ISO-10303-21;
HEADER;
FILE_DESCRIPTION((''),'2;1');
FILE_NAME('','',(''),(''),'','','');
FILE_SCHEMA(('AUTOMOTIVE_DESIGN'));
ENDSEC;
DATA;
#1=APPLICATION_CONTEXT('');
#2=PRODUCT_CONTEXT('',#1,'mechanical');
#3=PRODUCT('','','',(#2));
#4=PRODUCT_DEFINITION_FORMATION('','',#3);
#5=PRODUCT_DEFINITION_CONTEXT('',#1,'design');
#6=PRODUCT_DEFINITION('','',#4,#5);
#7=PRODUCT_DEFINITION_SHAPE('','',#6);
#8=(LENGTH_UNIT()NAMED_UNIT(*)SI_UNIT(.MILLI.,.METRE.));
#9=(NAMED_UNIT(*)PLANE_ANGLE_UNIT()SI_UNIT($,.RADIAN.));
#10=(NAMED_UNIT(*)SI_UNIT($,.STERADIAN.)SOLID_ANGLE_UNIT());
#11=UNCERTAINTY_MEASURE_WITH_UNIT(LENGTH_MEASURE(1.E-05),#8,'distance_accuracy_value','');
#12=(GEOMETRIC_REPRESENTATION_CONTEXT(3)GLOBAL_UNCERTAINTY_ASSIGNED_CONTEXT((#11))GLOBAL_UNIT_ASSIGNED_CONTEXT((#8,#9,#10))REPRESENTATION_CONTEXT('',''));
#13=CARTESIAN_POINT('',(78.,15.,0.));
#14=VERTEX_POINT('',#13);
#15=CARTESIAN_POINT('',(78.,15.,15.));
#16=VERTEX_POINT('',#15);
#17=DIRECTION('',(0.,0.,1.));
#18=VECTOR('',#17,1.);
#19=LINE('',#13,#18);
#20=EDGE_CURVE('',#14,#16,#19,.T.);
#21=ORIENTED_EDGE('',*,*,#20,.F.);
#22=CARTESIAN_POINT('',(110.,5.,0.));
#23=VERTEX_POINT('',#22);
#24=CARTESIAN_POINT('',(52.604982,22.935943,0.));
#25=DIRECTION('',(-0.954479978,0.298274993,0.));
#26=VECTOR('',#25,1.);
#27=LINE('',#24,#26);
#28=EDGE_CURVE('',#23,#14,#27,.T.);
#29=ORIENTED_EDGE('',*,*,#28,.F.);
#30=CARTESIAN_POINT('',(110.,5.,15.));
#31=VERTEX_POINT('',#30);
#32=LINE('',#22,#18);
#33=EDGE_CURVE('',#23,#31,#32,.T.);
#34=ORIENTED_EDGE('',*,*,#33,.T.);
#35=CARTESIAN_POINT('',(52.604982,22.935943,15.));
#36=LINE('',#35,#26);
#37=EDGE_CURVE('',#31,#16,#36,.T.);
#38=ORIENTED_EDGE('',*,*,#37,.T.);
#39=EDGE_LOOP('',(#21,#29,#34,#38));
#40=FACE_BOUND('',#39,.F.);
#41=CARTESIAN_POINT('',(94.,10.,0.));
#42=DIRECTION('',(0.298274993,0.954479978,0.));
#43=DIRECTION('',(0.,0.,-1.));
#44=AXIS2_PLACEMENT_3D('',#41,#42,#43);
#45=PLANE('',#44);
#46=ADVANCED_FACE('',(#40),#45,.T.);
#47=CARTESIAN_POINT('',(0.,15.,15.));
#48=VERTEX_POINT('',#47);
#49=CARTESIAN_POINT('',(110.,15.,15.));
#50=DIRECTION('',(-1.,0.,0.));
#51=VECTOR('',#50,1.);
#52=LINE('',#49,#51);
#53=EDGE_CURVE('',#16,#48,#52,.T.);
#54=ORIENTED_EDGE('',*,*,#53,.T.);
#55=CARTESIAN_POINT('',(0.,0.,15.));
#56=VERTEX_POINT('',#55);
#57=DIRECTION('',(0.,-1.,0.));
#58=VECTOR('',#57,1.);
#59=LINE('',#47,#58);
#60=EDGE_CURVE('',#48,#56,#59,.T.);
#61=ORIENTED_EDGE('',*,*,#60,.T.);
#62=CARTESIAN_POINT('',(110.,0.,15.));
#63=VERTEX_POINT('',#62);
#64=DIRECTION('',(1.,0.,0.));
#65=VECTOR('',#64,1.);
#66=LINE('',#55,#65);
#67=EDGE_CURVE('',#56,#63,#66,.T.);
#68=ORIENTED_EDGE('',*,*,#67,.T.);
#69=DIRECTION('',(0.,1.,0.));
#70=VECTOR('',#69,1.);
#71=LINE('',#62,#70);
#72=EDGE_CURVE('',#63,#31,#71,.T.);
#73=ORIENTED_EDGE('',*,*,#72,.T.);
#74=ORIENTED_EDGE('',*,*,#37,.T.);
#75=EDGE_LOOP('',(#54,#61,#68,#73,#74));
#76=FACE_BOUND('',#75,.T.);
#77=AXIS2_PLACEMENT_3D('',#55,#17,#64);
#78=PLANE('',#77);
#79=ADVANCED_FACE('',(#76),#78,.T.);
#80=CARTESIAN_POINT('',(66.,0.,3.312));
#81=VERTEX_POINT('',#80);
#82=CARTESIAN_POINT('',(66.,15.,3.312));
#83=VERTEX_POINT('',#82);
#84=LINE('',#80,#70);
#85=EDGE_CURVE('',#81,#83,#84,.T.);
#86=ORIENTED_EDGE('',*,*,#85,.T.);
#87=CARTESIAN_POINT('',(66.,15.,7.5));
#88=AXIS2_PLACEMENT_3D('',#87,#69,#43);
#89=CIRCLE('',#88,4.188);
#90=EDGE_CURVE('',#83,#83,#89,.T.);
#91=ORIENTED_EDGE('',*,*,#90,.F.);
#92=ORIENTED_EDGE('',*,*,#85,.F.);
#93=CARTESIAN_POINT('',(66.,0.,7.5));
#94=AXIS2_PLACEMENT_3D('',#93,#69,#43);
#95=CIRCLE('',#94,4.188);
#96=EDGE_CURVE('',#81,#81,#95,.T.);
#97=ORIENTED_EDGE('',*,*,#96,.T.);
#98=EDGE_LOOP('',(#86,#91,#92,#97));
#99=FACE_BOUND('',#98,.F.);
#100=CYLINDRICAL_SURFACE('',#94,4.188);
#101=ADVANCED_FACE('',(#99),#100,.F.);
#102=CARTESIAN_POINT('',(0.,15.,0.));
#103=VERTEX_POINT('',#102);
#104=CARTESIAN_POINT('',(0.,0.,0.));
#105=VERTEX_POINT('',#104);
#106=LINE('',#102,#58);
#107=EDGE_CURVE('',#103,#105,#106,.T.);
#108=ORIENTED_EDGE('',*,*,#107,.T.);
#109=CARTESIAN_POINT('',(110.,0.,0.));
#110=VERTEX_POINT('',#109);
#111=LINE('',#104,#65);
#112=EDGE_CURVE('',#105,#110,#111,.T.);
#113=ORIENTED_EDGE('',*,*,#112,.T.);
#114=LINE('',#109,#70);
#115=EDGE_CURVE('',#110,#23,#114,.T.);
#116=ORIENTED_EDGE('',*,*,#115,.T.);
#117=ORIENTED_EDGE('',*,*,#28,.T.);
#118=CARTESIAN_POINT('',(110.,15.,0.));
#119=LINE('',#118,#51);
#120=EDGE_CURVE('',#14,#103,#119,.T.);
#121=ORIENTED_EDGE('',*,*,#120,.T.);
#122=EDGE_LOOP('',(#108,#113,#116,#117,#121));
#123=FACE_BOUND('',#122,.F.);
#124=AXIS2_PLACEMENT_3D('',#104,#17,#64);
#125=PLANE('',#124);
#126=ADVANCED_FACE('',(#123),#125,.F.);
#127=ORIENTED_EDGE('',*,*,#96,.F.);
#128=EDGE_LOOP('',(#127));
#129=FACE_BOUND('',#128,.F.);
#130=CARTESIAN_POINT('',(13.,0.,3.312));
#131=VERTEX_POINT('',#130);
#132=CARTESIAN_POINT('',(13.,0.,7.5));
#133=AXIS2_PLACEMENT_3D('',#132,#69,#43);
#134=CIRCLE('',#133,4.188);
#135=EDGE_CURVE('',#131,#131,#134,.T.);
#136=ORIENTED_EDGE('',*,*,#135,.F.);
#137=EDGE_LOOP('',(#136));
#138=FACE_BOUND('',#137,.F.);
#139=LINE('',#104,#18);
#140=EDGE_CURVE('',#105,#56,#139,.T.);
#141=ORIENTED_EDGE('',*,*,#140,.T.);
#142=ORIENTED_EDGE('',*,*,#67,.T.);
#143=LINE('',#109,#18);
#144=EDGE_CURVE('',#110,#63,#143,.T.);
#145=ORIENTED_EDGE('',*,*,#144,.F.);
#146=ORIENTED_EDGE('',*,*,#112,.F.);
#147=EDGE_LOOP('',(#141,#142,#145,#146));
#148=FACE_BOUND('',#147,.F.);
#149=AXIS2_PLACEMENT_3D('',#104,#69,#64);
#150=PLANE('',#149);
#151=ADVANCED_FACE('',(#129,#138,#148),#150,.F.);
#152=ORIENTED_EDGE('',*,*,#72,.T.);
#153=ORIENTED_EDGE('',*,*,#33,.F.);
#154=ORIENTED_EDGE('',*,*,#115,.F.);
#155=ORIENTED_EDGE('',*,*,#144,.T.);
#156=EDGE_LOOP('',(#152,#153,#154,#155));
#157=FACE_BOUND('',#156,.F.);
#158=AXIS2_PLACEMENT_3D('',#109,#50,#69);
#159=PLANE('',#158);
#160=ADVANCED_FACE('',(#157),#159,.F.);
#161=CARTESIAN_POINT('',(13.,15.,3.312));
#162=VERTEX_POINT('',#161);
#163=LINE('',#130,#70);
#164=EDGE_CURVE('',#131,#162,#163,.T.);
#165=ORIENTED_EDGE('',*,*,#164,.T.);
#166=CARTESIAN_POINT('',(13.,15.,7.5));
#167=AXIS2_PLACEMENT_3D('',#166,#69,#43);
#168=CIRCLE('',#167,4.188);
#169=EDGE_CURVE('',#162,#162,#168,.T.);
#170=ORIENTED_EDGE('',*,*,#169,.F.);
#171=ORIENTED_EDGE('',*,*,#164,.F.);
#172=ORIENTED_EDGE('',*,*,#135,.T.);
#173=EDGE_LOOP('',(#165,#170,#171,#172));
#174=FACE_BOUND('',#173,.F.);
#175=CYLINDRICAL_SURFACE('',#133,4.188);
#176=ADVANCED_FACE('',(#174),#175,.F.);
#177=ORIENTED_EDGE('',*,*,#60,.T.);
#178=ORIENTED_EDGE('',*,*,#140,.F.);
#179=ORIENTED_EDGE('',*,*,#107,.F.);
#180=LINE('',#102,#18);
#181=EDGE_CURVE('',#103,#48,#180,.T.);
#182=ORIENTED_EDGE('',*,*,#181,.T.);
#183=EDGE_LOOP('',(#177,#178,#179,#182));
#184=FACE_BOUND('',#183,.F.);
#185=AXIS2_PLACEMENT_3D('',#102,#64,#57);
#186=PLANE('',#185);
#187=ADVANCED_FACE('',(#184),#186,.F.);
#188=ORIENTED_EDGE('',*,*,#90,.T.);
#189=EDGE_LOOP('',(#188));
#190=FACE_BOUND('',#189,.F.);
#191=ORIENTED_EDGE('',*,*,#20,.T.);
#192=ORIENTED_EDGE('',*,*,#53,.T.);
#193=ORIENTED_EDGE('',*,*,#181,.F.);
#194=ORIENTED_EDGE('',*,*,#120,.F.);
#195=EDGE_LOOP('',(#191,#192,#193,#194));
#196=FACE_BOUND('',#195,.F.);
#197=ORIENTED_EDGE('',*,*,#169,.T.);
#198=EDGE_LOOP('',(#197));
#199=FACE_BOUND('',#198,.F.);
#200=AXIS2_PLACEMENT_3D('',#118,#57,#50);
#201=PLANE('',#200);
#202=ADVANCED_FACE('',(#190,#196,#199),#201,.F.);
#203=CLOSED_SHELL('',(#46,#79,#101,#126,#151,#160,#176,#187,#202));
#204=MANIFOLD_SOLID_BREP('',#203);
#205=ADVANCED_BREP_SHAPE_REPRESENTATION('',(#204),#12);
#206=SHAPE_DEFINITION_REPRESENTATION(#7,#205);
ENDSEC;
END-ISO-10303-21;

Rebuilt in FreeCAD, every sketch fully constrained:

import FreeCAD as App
import Part
import Sketcher
from FreeCAD import Vector
Q = App.Units.Quantity


def edges_at(feature, points):
    """Names of the edges that pass closest to the given points."""
    edges = feature.Shape.Edges
    near = lambda p: min(range(len(edges)), key=lambda i: edges[i].distToShape(Part.Vertex(*p))[0])
    return sorted({f"Edge{near(p) + 1}" for p in points})

doc = App.newDocument("Part")
body = doc.addObject("PartDesign::Body", "Body")

sketch1 = body.newObject("Sketcher::SketchObject", "Sketch")
sketch1.AttachmentSupport = (doc.getObject("XY_Plane"), [""])
sketch1.MapMode = "FlatFace"
sketch1.addGeometry(Part.LineSegment(Vector(0, 15, 0), Vector(0, 0, 0)), False)
sketch1.addGeometry(Part.LineSegment(Vector(0, 0, 0), Vector(110, 0, 0)), False)
sketch1.addGeometry(Part.LineSegment(Vector(110, 0, 0), Vector(110, 15, 0)), False)
sketch1.addGeometry(Part.LineSegment(Vector(110, 15, 0), Vector(0, 15, 0)), False)
sketch1.addConstraint(Sketcher.Constraint("Coincident", 0, 2, 1, 1))
sketch1.addConstraint(Sketcher.Constraint("Coincident", 1, 2, 2, 1))
sketch1.addConstraint(Sketcher.Constraint("Coincident", 2, 2, 3, 1))
sketch1.addConstraint(Sketcher.Constraint("Coincident", 3, 2, 0, 1))
sketch1.addConstraint(Sketcher.Constraint("Vertical", 0))
sketch1.addConstraint(Sketcher.Constraint("Horizontal", 1))
sketch1.addConstraint(Sketcher.Constraint("Vertical", 2))
sketch1.addConstraint(Sketcher.Constraint("Horizontal", 3))
sketch1.addConstraint(Sketcher.Constraint("Coincident", 0, 2, -1, 1))
sketch1.addConstraint(Sketcher.Constraint("DistanceX", 1, 1, 1, 2, Q("110 mm")))
sketch1.addConstraint(Sketcher.Constraint("DistanceY", 0, 2, 0, 1, Q("15 mm")))
pad1 = body.newObject("PartDesign::Pad", "Pad")
pad1.Profile = sketch1
pad1.Length = 15
doc.recompute()

chamfer = body.newObject("PartDesign::Chamfer", "Chamfer")
chamfer.Base = (pad1, edges_at(pad1, [(110, 15, 7.5)]))
chamfer.ChamferType = "Two distances"
chamfer.Size = 10
chamfer.Size2 = 32

sketch2 = body.newObject("Sketcher::SketchObject", "Sketch001")
sketch2.AttachmentSupport = (doc.getObject("XZ_Plane"), [""])
sketch2.MapMode = "FlatFace"
sketch2.addGeometry(Part.Circle(Vector(13, 7.5, 0), Vector(0, 0, 1), 4.2), False)
sketch2.addGeometry(Part.Circle(Vector(66, 7.5, 0), Vector(0, 0, 1), 4.2), False)
sketch2.addConstraint(Sketcher.Constraint("Equal", 0, 1))
sketch2.addConstraint(Sketcher.Constraint("Horizontal", 0, 3, 1, 3))
sketch2.addConstraint(Sketcher.Constraint("Diameter", 0, Q("8.376 mm")))
sketch2.addConstraint(Sketcher.Constraint("DistanceX", -1, 1, 0, 3, Q("13 mm")))
sketch2.addConstraint(Sketcher.Constraint("DistanceX", -1, 1, 1, 3, Q("66 mm")))
sketch2.addConstraint(Sketcher.Constraint("DistanceY", -1, 1, 0, 3, Q("7.5 mm")))
doc.recompute()
hole = body.newObject("PartDesign::Hole", "Hole")
hole.Profile = sketch2
hole.ThreadType = "None"
hole.Diameter = 8.376
hole.DepthType = "ThroughAll"

doc.recompute()
